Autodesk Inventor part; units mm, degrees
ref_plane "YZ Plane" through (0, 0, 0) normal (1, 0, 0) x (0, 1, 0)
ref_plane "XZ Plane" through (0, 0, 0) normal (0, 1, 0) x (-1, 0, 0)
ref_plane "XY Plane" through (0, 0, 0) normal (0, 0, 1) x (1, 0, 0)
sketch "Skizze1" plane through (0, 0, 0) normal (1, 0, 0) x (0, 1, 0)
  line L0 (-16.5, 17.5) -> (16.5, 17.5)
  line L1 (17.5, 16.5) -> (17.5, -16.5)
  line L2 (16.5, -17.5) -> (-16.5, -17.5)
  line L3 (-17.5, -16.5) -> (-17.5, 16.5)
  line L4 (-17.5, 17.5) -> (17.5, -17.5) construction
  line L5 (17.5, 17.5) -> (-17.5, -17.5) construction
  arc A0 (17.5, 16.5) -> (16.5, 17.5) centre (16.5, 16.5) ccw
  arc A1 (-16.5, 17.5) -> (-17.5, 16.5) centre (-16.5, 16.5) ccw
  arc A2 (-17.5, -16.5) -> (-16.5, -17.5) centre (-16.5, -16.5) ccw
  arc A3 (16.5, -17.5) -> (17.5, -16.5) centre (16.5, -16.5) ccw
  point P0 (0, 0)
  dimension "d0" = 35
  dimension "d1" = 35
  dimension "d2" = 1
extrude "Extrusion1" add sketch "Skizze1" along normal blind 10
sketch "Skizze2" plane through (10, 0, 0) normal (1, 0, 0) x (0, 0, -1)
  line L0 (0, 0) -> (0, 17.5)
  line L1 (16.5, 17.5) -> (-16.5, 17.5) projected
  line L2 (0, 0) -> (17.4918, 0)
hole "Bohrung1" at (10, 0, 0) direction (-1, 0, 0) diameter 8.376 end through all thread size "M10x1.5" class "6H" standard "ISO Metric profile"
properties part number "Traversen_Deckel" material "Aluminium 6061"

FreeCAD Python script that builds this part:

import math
import FreeCAD as App
import Part
import Sketcher

doc = App.newDocument("Part")
body = doc.addObject("PartDesign::Body", "Body")

# Sketch on YZ plane
sketch1 = body.newObject("Sketcher::SketchObject", "Sketch")
sketch1.AttachmentSupport = (doc.getObject("YZ_Plane"), [""])
sketch1.MapMode = "FlatFace"
sketch1.addGeometry([
    Part.LineSegment(App.Vector(16.5, 17.5, 0), App.Vector(-16.5, 17.5, 0)),  # 0
    Part.ArcOfCircle(Part.Circle(App.Vector(-16.5, 16.5, 0), App.Vector(0, 0, 1), 1), math.radians(90), math.radians(180)),  # 1
    Part.LineSegment(App.Vector(-17.5, 16.5, 0), App.Vector(-17.5, -16.5, 0)),  # 2
    Part.ArcOfCircle(Part.Circle(App.Vector(-16.5, -16.5, 0), App.Vector(0, 0, 1), 1), math.radians(180), math.radians(270)),  # 3
    Part.LineSegment(App.Vector(-16.5, -17.5, 0), App.Vector(16.5, -17.5, 0)),  # 4
    Part.ArcOfCircle(Part.Circle(App.Vector(16.5, -16.5, 0), App.Vector(0, 0, 1), 1), math.radians(-90), math.radians(0)),  # 5
    Part.LineSegment(App.Vector(17.5, -16.5, 0), App.Vector(17.5, 16.5, 0)),  # 6
    Part.ArcOfCircle(Part.Circle(App.Vector(16.5, 16.5, 0), App.Vector(0, 0, 1), 1), math.radians(0), math.radians(90)),  # 7
], False)
sketch1.addConstraint([
    Sketcher.Constraint("Tangent", 0, 2, 1, 1),
    Sketcher.Constraint("Tangent", 1, 2, 2, 1),
    Sketcher.Constraint("Tangent", 2, 2, 3, 1),
    Sketcher.Constraint("Tangent", 3, 2, 4, 1),
    Sketcher.Constraint("Tangent", 4, 2, 5, 1),
    Sketcher.Constraint("Tangent", 5, 2, 6, 1),
    Sketcher.Constraint("Tangent", 6, 2, 7, 1),
    Sketcher.Constraint("Tangent", 7, 2, 0, 1),
    Sketcher.Constraint("Horizontal", 0),
    Sketcher.Constraint("Vertical", 2),
    Sketcher.Constraint("Horizontal", 4),
    Sketcher.Constraint("Vertical", 6),
    Sketcher.Constraint("Equal", 1, 3),
    Sketcher.Constraint("Equal", 3, 5),
    Sketcher.Constraint("Equal", 5, 7),
    Sketcher.Constraint("Symmetric", 1, 3, 5, 3, -1, 1),
    Sketcher.Constraint("Equal", 4, 2),
    Sketcher.Constraint("Radius", 1, 1.0),
    Sketcher.Constraint("DistanceX", 0, 2, 0, 1, 33.0),
])
pad1 = body.newObject("PartDesign::Pad", "Pad")
pad1.Profile = sketch1
pad1.Length = 10

# Sketch on YZ plane
sketch2 = body.newObject("Sketcher::SketchObject", "Sketch001")
sketch2.AttachmentSupport = (doc.getObject("YZ_Plane"), [""])
sketch2.MapMode = "FlatFace"
sketch2.AttachmentOffset = App.Placement(App.Vector(0, 0, 10), App.Rotation())
sketch2.addGeometry(Part.Circle(App.Vector(0, 0, 0), App.Vector(0, 0, 1), 4.188), False)
sketch2.addConstraint([
    Sketcher.Constraint("Coincident", 0, 3, -1, 1),
    Sketcher.Constraint("Diameter", 0, 8.376),
])
doc.recompute()
hole = body.newObject("PartDesign::Hole", "Hole")
hole.Profile = sketch2
hole.ThreadType = "None"
hole.Diameter = 8.376
hole.DepthType = "ThroughAll"

doc.recompute()
